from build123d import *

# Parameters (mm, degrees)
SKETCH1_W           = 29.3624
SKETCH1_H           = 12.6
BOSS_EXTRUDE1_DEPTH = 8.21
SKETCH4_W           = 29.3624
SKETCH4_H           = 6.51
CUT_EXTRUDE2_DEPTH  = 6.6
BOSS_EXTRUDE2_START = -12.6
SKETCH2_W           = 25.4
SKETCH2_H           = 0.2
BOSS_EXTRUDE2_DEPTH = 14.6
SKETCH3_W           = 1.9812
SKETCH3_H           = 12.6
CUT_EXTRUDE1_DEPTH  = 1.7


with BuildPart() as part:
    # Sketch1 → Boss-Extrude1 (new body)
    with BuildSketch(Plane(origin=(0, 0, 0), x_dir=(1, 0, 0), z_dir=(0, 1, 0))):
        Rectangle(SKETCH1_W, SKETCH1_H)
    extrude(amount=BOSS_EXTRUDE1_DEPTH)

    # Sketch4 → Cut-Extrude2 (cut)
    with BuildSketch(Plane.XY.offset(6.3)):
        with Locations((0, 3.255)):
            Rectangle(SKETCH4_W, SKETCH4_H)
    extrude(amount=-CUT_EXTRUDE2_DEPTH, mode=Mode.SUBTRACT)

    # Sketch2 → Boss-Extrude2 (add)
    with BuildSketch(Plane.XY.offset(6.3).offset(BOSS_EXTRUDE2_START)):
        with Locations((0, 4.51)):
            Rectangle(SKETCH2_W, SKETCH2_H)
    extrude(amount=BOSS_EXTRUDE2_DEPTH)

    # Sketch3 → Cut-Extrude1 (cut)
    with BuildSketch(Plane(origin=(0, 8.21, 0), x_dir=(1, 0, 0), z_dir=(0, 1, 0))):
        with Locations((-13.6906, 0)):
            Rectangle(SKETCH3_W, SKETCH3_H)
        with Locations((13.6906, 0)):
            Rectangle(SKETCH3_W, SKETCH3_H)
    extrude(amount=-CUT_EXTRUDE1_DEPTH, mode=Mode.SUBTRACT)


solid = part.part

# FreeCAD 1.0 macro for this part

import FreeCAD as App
import Part
import Sketcher

V = App.Vector
Q = App.Units.Quantity


def add_polygon(sketch, points):
    """Adds a closed chain of lines whose ends are joined by coincident constraints."""
    first, n = sketch.GeometryCount, len(points)
    for a, b in zip(points, points[1:] + points[:1]):
        sketch.addGeometry(Part.LineSegment(App.Vector(*a, 0), App.Vector(*b, 0)), False)
    for i in range(n):
        sketch.addConstraint(Sketcher.Constraint("Coincident", first + i, 2, first + (i + 1) % n, 1))

doc = App.newDocument("Part")
body = doc.addObject("PartDesign::Body", "Body")

sketch1 = body.newObject("Sketcher::SketchObject", "Sketch")
sketch1.AttachmentSupport = (doc.getObject("XZ_Plane"), [""])
sketch1.MapMode = "FlatFace"
add_polygon(sketch1, [(-14.6812, -6.3), (-14.6812, 6.3), (14.6812, 6.3), (14.6812, -6.3)])
sketch1.addConstraint(Sketcher.Constraint("Vertical", 0))
sketch1.addConstraint(Sketcher.Constraint("Horizontal", 1))
sketch1.addConstraint(Sketcher.Constraint("Vertical", 2))
sketch1.addConstraint(Sketcher.Constraint("Horizontal", 3))
sketch1.addConstraint(Sketcher.Constraint("Symmetric", 0, 2, 2, 2, -1, 1))
sketch1.addConstraint(Sketcher.Constraint("DistanceY", 0, 1, 0, 2, Q("12.6 mm")))
sketch1.addConstraint(Sketcher.Constraint("DistanceX", 1, 1, 1, 2, Q("29.3624 mm")))
pad1 = body.newObject("PartDesign::Pad", "Pad")
pad1.Profile = sketch1
pad1.Length = 8.21
pad1.Reversed = True

sketch2 = body.newObject("Sketcher::SketchObject", "Sketch001")
sketch2.AttachmentSupport = (doc.getObject("XY_Plane"), [""])
sketch2.MapMode = "FlatFace"
sketch2.AttachmentOffset = App.Placement(V(0, 0, 6.3), App.Rotation())
add_polygon(sketch2, [(-14.6812, 6.51), (-14.6812, 0), (14.6812, 0), (14.6812, 6.51)])
sketch2.addConstraint(Sketcher.Constraint("Vertical", 0))
sketch2.addConstraint(Sketcher.Constraint("Horizontal", 1))
sketch2.addConstraint(Sketcher.Constraint("Vertical", 2))
sketch2.addConstraint(Sketcher.Constraint("Horizontal", 3))
sketch2.addConstraint(Sketcher.Constraint("Symmetric", 0, 2, 1, 2, -1, 1))
sketch2.addConstraint(Sketcher.Constraint("DistanceY", 0, 2, 0, 1, Q("6.51 mm")))
sketch2.addConstraint(Sketcher.Constraint("DistanceX", 1, 1, 1, 2, Q("29.3624 mm")))
pocket1 = body.newObject("PartDesign::Pocket", "Pocket")
pocket1.Profile = sketch2
pocket1.Length = 6.6

sketch3 = body.newObject("Sketcher::SketchObject", "Sketch002")
sketch3.AttachmentSupport = (doc.getObject("XY_Plane"), [""])
sketch3.MapMode = "FlatFace"
sketch3.AttachmentOffset = App.Placement(V(0, 0, -6.3), App.Rotation())
add_polygon(sketch3, [(-12.7, 4.61), (-12.7, 4.41), (12.7, 4.41), (12.7, 4.61)])
sketch3.addConstraint(Sketcher.Constraint("Vertical", 0))
sketch3.addConstraint(Sketcher.Constraint("Horizontal", 1))
sketch3.addConstraint(Sketcher.Constraint("Vertical", 2))
sketch3.addConstraint(Sketcher.Constraint("Horizontal", 3))
sketch3.addConstraint(Sketcher.Constraint("DistanceX", 1, 1, 1, 2, Q("25.4 mm")))
sketch3.addConstraint(Sketcher.Constraint("DistanceY", 0, 2, 0, 1, Q("0.2 mm")))
sketch3.addConstraint(Sketcher.Constraint("DistanceX", 0, 2, -1, 1, Q("12.7 mm")))
sketch3.addConstraint(Sketcher.Constraint("DistanceY", -1, 1, 0, 2, Q("4.41 mm")))
pad2 = body.newObject("PartDesign::Pad", "Pad001")
pad2.Profile = sketch3
pad2.Length = 14.6

sketch4 = body.newObject("Sketcher::SketchObject", "Sketch003")
sketch4.AttachmentSupport = (doc.getObject("XZ_Plane"), [""])
sketch4.MapMode = "FlatFace"
sketch4.AttachmentOffset = App.Placement(V(0, 0, -8.21), App.Rotation())
add_polygon(sketch4, [(-14.6812, -6.3), (-14.6812, 6.3), (-12.7, 6.3), (-12.7, -6.3)])
add_polygon(sketch4, [(12.7, -6.3), (12.7, 6.3), (14.6812, 6.3), (14.6812, -6.3)])
sketch4.addConstraint(Sketcher.Constraint("Vertical", 0))
sketch4.addConstraint(Sketcher.Constraint("Horizontal", 1))
sketch4.addConstraint(Sketcher.Constraint("Vertical", 2))
sketch4.addConstraint(Sketcher.Constraint("Horizontal", 3))
sketch4.addConstraint(Sketcher.Constraint("Vertical", 4))
sketch4.addConstraint(Sketcher.Constraint("Horizontal", 5))
sketch4.addConstraint(Sketcher.Constraint("Vertical", 6))
sketch4.addConstraint(Sketcher.Constraint("Horizontal", 7))
sketch4.addConstraint(Sketcher.Constraint("Symmetric", 2, 2, 4, 2, -1, 1))
sketch4.addConstraint(Sketcher.Constraint("Symmetric", 0, 2, 6, 2, -1, 1))
sketch4.addConstraint(Sketcher.Constraint("Horizontal", 1, 2, 4, 2))
sketch4.addConstraint(Sketcher.Constraint("DistanceY", 0, 1, 0, 2, Q("12.6 mm")))
sketch4.addConstraint(Sketcher.Constraint("DistanceX", 1, 2, -1, 1, Q("12.7 mm")))
sketch4.addConstraint(Sketcher.Constraint("DistanceX", 1, 1, 1, 2, Q("1.9812 mm")))
pocket2 = body.newObject("PartDesign::Pocket", "Pocket001")
pocket2.Profile = sketch4
pocket2.Length = 1.7
pocket2.Reversed = True

doc.recompute()
